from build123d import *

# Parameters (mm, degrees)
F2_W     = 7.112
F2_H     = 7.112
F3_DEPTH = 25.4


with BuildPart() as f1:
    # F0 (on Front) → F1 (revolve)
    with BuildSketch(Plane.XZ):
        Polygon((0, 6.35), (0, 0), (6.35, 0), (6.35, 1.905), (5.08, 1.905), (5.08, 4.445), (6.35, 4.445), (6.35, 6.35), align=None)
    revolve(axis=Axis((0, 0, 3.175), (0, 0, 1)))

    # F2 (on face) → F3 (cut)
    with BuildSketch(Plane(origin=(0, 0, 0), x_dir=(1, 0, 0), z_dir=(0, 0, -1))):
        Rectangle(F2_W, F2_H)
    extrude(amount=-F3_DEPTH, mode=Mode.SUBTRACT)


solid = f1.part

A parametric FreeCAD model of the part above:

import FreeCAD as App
import Part
import Sketcher

V = App.Vector
Q = App.Units.Quantity


def add_polygon(sketch, points):
    """Adds a closed chain of lines whose ends are joined by coincident constraints."""
    first, n = sketch.GeometryCount, len(points)
    for a, b in zip(points, points[1:] + points[:1]):
        sketch.addGeometry(Part.LineSegment(App.Vector(*a, 0), App.Vector(*b, 0)), False)
    for i in range(n):
        sketch.addConstraint(Sketcher.Constraint("Coincident", first + i, 2, first + (i + 1) % n, 1))

doc = App.newDocument("Part")
body = doc.addObject("PartDesign::Body", "Body")

# Sketch on XZ plane
sketch1 = body.newObject("Sketcher::SketchObject", "Sketch")
sketch1.AttachmentSupport = (doc.getObject("XZ_Plane"), [""])
sketch1.MapMode = "FlatFace"
add_polygon(sketch1, [(0, 6.3), (0, 0), (6.3, 0), (6.3, 1.9), (5.1, 1.9), (5.1, 4.4), (6.3, 4.4), (6.3, 6.3)])  # lines 0-7
sketch1.addConstraint([
    Sketcher.Constraint("Vertical", 0),
    Sketcher.Constraint("Horizontal", 1),
    Sketcher.Constraint("Vertical", 2),
    Sketcher.Constraint("Horizontal", 3),
    Sketcher.Constraint("Vertical", 4),
    Sketcher.Constraint("Horizontal", 5),
    Sketcher.Constraint("Vertical", 6),
    Sketcher.Constraint("Horizontal", 7),
    Sketcher.Constraint("Coincident", 0, 2, -1, 1),
    Sketcher.Constraint("Vertical", 2, 2, 5, 2),
    Sketcher.Constraint("Equal", 7, 0),
    Sketcher.Constraint("Equal", 2, 6),
    Sketcher.Constraint("DistanceY", 4, 1, 4, 2, Q("0.1 in")),
    Sketcher.Constraint("DistanceX", 1, 1, 1, 2, Q("0.25 in")),
    Sketcher.Constraint("DistanceX", 3, 2, 3, 1, Q("0.05 in")),
])
revolution = body.newObject("PartDesign::Revolution", "Revolution")
revolution.Profile = sketch1
revolution.ReferenceAxis = (sketch1, ["V_Axis"])
revolution.Angle = 360

# Sketch on XY plane
sketch2 = body.newObject("Sketcher::SketchObject", "Sketch001")
sketch2.AttachmentSupport = (doc.getObject("XY_Plane"), [""])
sketch2.MapMode = "FlatFace"
add_polygon(sketch2, [(-4, -4), (-4, 4), (4, 4), (4, -4)])  # lines 0-3
sketch2.addConstraint([
    Sketcher.Constraint("Vertical", 0),
    Sketcher.Constraint("Horizontal", 1),
    Sketcher.Constraint("Vertical", 2),
    Sketcher.Constraint("Horizontal", 3),
    Sketcher.Constraint("Symmetric", 0, 2, 2, 2, -1, 1),
    Sketcher.Constraint("Equal", 3, 0),
    Sketcher.Constraint("DistanceX", 1, 1, 1, 2, Q("0.28 in")),
])
pocket1 = body.newObject("PartDesign::Pocket", "Pocket")
pocket1.Profile = sketch2
pocket1.Length = Q("1 in")
pocket1.Reversed = True

doc.recompute()
